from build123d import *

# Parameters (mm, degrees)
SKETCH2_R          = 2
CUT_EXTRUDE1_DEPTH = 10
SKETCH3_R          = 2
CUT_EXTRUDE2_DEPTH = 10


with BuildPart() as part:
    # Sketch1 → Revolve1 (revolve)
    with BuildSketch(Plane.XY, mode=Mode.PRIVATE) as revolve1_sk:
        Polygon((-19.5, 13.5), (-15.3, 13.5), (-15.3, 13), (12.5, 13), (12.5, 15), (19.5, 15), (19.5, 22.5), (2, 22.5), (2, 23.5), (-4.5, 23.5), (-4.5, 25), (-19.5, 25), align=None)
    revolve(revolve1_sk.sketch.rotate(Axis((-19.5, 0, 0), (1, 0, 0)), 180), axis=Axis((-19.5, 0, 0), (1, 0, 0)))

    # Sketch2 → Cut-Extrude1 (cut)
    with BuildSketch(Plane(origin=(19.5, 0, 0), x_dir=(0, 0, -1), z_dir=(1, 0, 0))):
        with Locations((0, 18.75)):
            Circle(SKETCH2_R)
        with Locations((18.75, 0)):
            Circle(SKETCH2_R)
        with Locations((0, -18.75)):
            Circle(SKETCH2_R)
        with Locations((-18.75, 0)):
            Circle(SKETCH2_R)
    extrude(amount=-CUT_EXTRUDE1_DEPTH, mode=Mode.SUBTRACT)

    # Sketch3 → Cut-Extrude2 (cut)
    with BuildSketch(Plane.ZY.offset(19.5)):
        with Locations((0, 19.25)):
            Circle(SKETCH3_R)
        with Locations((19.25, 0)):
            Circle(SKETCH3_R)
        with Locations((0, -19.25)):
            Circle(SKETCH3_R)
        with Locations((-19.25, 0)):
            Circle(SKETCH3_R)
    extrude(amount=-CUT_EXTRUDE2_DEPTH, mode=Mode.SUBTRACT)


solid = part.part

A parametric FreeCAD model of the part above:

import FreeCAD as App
import Part
import Sketcher

doc = App.newDocument("Part")
body = doc.addObject("PartDesign::Body", "Body")

# Sketch on XY plane
sketch1 = body.newObject("Sketcher::SketchObject", "Sketch")
sketch1.AttachmentSupport = (doc.getObject("XY_Plane"), [""])
sketch1.MapMode = "FlatFace"
sketch1.addGeometry(Part.LineSegment(App.Vector(-19.5, 13.5, 0), App.Vector(-15.3, 13.5, 0)), False)
sketch1.addGeometry(Part.LineSegment(App.Vector(-15.3, 13.5, 0), App.Vector(-15.3, 13, 0)), False)
sketch1.addGeometry(Part.LineSegment(App.Vector(-15.3, 13, 0), App.Vector(12.5, 13, 0)), False)
sketch1.addGeometry(Part.LineSegment(App.Vector(12.5, 13, 0), App.Vector(12.5, 15, 0)), False)
sketch1.addGeometry(Part.LineSegment(App.Vector(12.5, 15, 0), App.Vector(19.5, 15, 0)), False)
sketch1.addGeometry(Part.LineSegment(App.Vector(19.5, 15, 0), App.Vector(19.5, 22.5, 0)), False)
sketch1.addGeometry(Part.LineSegment(App.Vector(19.5, 22.5, 0), App.Vector(2, 22.5, 0)), False)
sketch1.addGeometry(Part.LineSegment(App.Vector(2, 22.5, 0), App.Vector(2, 23.5, 0)), False)
sketch1.addGeometry(Part.LineSegment(App.Vector(2, 23.5, 0), App.Vector(-4.5, 23.5, 0)), False)
sketch1.addGeometry(Part.LineSegment(App.Vector(-4.5, 23.5, 0), App.Vector(-4.5, 25, 0)), False)
sketch1.addGeometry(Part.LineSegment(App.Vector(-4.5, 25, 0), App.Vector(-19.5, 25, 0)), False)
sketch1.addGeometry(Part.LineSegment(App.Vector(-19.5, 25, 0), App.Vector(-19.5, 13.5, 0)), False)
sketch1.addConstraint(Sketcher.Constraint("Coincident", 0, 2, 1, 1))
sketch1.addConstraint(Sketcher.Constraint("Coincident", 1, 2, 2, 1))
sketch1.addConstraint(Sketcher.Constraint("Coincident", 2, 2, 3, 1))
sketch1.addConstraint(Sketcher.Constraint("Coincident", 3, 2, 4, 1))
sketch1.addConstraint(Sketcher.Constraint("Coincident", 4, 2, 5, 1))
sketch1.addConstraint(Sketcher.Constraint("Coincident", 5, 2, 6, 1))
sketch1.addConstraint(Sketcher.Constraint("Coincident", 6, 2, 7, 1))
sketch1.addConstraint(Sketcher.Constraint("Coincident", 7, 2, 8, 1))
sketch1.addConstraint(Sketcher.Constraint("Coincident", 8, 2, 9, 1))
sketch1.addConstraint(Sketcher.Constraint("Coincident", 9, 2, 10, 1))
sketch1.addConstraint(Sketcher.Constraint("Coincident", 10, 2, 11, 1))
sketch1.addConstraint(Sketcher.Constraint("Coincident", 11, 2, 0, 1))
sketch1.addConstraint(Sketcher.Constraint("Horizontal", 0))
sketch1.addConstraint(Sketcher.Constraint("Vertical", 1))
sketch1.addConstraint(Sketcher.Constraint("Horizontal", 2))
sketch1.addConstraint(Sketcher.Constraint("Vertical", 3))
sketch1.addConstraint(Sketcher.Constraint("Horizontal", 4))
sketch1.addConstraint(Sketcher.Constraint("Vertical", 5))
sketch1.addConstraint(Sketcher.Constraint("Horizontal", 6))
sketch1.addConstraint(Sketcher.Constraint("Vertical", 7))
sketch1.addConstraint(Sketcher.Constraint("Horizontal", 8))
sketch1.addConstraint(Sketcher.Constraint("Vertical", 9))
sketch1.addConstraint(Sketcher.Constraint("Horizontal", 10))
sketch1.addConstraint(Sketcher.Constraint("Vertical", 11))
sketch1.addConstraint(Sketcher.Constraint("DistanceX", 4, 1, 4, 2, 7.0))
sketch1.addConstraint(Sketcher.Constraint("DistanceX", 10, 2, 10, 1, 15.0))
sketch1.addConstraint(Sketcher.Constraint("DistanceY", 3, 1, 3, 2, 2.0))
sketch1.addConstraint(Sketcher.Constraint("DistanceY", 7, 1, 7, 2, 1.0))
sketch1.addConstraint(Sketcher.Constraint("DistanceX", 0, 1, 0, 2, 4.2))
sketch1.addConstraint(Sketcher.Constraint("DistanceX", 2, 1, 2, 2, 27.8))
sketch1.addConstraint(Sketcher.Constraint("DistanceX", 6, 2, 6, 1, 17.5))
sketch1.addConstraint(Sketcher.Constraint("DistanceY", 1, 2, 1, 1, 0.5))
sketch1.addConstraint(Sketcher.Constraint("DistanceY", 5, 1, 5, 2, 7.5))
sketch1.addConstraint(Sketcher.Constraint("DistanceY", 9, 1, 9, 2, 1.5))
sketch1.addConstraint(Sketcher.Constraint("DistanceY", -1, 1, 1, 2, 13.0))
sketch1.addConstraint(Sketcher.Constraint("DistanceX", -1, 1, 6, 2, 2.0))
revolution = body.newObject("PartDesign::Revolution", "Revolution")
revolution.Profile = sketch1
revolution.ReferenceAxis = (sketch1, ["H_Axis"])
revolution.Angle = 360

# Sketch on YZ plane
sketch2 = body.newObject("Sketcher::SketchObject", "Sketch001")
sketch2.AttachmentSupport = (doc.getObject("YZ_Plane"), [""])
sketch2.MapMode = "FlatFace"
sketch2.AttachmentOffset = App.Placement(App.Vector(0, 0, 19.5), App.Rotation())
sketch2.addGeometry(Part.Circle(App.Vector(18.75, 0, 0), App.Vector(0, 0, 1), 2), False)
sketch2.addGeometry(Part.Circle(App.Vector(0, -18.75, 0), App.Vector(0, 0, 1), 2), False)
sketch2.addGeometry(Part.Circle(App.Vector(-18.75, 0, 0), App.Vector(0, 0, 1), 2), False)
sketch2.addGeometry(Part.Circle(App.Vector(0, 18.75, 0), App.Vector(0, 0, 1), 2), False)
sketch2.addConstraint(Sketcher.Constraint("Equal", 0, 1))
sketch2.addConstraint(Sketcher.Constraint("Equal", 1, 2))
sketch2.addConstraint(Sketcher.Constraint("Equal", 2, 3))
sketch2.addConstraint(Sketcher.Constraint("Symmetric", 0, 3, 2, 3, -1, 1))
sketch2.addConstraint(Sketcher.Constraint("Symmetric", 1, 3, 3, 3, -1, 1))
sketch2.addConstraint(Sketcher.Constraint("PointOnObject", 0, 3, -1))
sketch2.addConstraint(Sketcher.Constraint("PointOnObject", 1, 3, -2))
sketch2.addConstraint(Sketcher.Constraint("Diameter", 0, 4.0))
sketch2.addConstraint(Sketcher.Constraint("DistanceX", 2, 3, 0, 3, 37.5))
sketch2.addConstraint(Sketcher.Constraint("DistanceY", 1, 3, 3, 3, 37.5))
pocket1 = body.newObject("PartDesign::Pocket", "Pocket")
pocket1.Profile = sketch2
pocket1.Length = 10

# Sketch on YZ plane
sketch3 = body.newObject("Sketcher::SketchObject", "Sketch002")
sketch3.AttachmentSupport = (doc.getObject("YZ_Plane"), [""])
sketch3.MapMode = "FlatFace"
sketch3.AttachmentOffset = App.Placement(App.Vector(0, 0, -19.5), App.Rotation())
sketch3.addGeometry(Part.Circle(App.Vector(19.25, 0, 0), App.Vector(0, 0, 1), 2), False)
sketch3.addGeometry(Part.Circle(App.Vector(0, 19.25, 0), App.Vector(0, 0, 1), 2), False)
sketch3.addGeometry(Part.Circle(App.Vector(-19.25, 0, 0), App.Vector(0, 0, 1), 2), False)
sketch3.addGeometry(Part.Circle(App.Vector(0, -19.25, 0), App.Vector(0, 0, 1), 2), False)
sketch3.addConstraint(Sketcher.Constraint("Equal", 0, 1))
sketch3.addConstraint(Sketcher.Constraint("Equal", 1, 2))
sketch3.addConstraint(Sketcher.Constraint("Equal", 2, 3))
sketch3.addConstraint(Sketcher.Constraint("Symmetric", 0, 3, 2, 3, -1, 1))
sketch3.addConstraint(Sketcher.Constraint("Symmetric", 1, 3, 3, 3, -1, 1))
sketch3.addConstraint(Sketcher.Constraint("PointOnObject", 0, 3, -1))
sketch3.addConstraint(Sketcher.Constraint("PointOnObject", 1, 3, -2))
sketch3.addConstraint(Sketcher.Constraint("Diameter", 0, 4.0))
sketch3.addConstraint(Sketcher.Constraint("DistanceX", 2, 3, 0, 3, 38.5))
sketch3.addConstraint(Sketcher.Constraint("DistanceY", 3, 3, 1, 3, 38.5))
pocket2 = body.newObject("PartDesign::Pocket", "Pocket001")
pocket2.Profile = sketch3
pocket2.Length = 10
pocket2.Reversed = True

doc.recompute()
